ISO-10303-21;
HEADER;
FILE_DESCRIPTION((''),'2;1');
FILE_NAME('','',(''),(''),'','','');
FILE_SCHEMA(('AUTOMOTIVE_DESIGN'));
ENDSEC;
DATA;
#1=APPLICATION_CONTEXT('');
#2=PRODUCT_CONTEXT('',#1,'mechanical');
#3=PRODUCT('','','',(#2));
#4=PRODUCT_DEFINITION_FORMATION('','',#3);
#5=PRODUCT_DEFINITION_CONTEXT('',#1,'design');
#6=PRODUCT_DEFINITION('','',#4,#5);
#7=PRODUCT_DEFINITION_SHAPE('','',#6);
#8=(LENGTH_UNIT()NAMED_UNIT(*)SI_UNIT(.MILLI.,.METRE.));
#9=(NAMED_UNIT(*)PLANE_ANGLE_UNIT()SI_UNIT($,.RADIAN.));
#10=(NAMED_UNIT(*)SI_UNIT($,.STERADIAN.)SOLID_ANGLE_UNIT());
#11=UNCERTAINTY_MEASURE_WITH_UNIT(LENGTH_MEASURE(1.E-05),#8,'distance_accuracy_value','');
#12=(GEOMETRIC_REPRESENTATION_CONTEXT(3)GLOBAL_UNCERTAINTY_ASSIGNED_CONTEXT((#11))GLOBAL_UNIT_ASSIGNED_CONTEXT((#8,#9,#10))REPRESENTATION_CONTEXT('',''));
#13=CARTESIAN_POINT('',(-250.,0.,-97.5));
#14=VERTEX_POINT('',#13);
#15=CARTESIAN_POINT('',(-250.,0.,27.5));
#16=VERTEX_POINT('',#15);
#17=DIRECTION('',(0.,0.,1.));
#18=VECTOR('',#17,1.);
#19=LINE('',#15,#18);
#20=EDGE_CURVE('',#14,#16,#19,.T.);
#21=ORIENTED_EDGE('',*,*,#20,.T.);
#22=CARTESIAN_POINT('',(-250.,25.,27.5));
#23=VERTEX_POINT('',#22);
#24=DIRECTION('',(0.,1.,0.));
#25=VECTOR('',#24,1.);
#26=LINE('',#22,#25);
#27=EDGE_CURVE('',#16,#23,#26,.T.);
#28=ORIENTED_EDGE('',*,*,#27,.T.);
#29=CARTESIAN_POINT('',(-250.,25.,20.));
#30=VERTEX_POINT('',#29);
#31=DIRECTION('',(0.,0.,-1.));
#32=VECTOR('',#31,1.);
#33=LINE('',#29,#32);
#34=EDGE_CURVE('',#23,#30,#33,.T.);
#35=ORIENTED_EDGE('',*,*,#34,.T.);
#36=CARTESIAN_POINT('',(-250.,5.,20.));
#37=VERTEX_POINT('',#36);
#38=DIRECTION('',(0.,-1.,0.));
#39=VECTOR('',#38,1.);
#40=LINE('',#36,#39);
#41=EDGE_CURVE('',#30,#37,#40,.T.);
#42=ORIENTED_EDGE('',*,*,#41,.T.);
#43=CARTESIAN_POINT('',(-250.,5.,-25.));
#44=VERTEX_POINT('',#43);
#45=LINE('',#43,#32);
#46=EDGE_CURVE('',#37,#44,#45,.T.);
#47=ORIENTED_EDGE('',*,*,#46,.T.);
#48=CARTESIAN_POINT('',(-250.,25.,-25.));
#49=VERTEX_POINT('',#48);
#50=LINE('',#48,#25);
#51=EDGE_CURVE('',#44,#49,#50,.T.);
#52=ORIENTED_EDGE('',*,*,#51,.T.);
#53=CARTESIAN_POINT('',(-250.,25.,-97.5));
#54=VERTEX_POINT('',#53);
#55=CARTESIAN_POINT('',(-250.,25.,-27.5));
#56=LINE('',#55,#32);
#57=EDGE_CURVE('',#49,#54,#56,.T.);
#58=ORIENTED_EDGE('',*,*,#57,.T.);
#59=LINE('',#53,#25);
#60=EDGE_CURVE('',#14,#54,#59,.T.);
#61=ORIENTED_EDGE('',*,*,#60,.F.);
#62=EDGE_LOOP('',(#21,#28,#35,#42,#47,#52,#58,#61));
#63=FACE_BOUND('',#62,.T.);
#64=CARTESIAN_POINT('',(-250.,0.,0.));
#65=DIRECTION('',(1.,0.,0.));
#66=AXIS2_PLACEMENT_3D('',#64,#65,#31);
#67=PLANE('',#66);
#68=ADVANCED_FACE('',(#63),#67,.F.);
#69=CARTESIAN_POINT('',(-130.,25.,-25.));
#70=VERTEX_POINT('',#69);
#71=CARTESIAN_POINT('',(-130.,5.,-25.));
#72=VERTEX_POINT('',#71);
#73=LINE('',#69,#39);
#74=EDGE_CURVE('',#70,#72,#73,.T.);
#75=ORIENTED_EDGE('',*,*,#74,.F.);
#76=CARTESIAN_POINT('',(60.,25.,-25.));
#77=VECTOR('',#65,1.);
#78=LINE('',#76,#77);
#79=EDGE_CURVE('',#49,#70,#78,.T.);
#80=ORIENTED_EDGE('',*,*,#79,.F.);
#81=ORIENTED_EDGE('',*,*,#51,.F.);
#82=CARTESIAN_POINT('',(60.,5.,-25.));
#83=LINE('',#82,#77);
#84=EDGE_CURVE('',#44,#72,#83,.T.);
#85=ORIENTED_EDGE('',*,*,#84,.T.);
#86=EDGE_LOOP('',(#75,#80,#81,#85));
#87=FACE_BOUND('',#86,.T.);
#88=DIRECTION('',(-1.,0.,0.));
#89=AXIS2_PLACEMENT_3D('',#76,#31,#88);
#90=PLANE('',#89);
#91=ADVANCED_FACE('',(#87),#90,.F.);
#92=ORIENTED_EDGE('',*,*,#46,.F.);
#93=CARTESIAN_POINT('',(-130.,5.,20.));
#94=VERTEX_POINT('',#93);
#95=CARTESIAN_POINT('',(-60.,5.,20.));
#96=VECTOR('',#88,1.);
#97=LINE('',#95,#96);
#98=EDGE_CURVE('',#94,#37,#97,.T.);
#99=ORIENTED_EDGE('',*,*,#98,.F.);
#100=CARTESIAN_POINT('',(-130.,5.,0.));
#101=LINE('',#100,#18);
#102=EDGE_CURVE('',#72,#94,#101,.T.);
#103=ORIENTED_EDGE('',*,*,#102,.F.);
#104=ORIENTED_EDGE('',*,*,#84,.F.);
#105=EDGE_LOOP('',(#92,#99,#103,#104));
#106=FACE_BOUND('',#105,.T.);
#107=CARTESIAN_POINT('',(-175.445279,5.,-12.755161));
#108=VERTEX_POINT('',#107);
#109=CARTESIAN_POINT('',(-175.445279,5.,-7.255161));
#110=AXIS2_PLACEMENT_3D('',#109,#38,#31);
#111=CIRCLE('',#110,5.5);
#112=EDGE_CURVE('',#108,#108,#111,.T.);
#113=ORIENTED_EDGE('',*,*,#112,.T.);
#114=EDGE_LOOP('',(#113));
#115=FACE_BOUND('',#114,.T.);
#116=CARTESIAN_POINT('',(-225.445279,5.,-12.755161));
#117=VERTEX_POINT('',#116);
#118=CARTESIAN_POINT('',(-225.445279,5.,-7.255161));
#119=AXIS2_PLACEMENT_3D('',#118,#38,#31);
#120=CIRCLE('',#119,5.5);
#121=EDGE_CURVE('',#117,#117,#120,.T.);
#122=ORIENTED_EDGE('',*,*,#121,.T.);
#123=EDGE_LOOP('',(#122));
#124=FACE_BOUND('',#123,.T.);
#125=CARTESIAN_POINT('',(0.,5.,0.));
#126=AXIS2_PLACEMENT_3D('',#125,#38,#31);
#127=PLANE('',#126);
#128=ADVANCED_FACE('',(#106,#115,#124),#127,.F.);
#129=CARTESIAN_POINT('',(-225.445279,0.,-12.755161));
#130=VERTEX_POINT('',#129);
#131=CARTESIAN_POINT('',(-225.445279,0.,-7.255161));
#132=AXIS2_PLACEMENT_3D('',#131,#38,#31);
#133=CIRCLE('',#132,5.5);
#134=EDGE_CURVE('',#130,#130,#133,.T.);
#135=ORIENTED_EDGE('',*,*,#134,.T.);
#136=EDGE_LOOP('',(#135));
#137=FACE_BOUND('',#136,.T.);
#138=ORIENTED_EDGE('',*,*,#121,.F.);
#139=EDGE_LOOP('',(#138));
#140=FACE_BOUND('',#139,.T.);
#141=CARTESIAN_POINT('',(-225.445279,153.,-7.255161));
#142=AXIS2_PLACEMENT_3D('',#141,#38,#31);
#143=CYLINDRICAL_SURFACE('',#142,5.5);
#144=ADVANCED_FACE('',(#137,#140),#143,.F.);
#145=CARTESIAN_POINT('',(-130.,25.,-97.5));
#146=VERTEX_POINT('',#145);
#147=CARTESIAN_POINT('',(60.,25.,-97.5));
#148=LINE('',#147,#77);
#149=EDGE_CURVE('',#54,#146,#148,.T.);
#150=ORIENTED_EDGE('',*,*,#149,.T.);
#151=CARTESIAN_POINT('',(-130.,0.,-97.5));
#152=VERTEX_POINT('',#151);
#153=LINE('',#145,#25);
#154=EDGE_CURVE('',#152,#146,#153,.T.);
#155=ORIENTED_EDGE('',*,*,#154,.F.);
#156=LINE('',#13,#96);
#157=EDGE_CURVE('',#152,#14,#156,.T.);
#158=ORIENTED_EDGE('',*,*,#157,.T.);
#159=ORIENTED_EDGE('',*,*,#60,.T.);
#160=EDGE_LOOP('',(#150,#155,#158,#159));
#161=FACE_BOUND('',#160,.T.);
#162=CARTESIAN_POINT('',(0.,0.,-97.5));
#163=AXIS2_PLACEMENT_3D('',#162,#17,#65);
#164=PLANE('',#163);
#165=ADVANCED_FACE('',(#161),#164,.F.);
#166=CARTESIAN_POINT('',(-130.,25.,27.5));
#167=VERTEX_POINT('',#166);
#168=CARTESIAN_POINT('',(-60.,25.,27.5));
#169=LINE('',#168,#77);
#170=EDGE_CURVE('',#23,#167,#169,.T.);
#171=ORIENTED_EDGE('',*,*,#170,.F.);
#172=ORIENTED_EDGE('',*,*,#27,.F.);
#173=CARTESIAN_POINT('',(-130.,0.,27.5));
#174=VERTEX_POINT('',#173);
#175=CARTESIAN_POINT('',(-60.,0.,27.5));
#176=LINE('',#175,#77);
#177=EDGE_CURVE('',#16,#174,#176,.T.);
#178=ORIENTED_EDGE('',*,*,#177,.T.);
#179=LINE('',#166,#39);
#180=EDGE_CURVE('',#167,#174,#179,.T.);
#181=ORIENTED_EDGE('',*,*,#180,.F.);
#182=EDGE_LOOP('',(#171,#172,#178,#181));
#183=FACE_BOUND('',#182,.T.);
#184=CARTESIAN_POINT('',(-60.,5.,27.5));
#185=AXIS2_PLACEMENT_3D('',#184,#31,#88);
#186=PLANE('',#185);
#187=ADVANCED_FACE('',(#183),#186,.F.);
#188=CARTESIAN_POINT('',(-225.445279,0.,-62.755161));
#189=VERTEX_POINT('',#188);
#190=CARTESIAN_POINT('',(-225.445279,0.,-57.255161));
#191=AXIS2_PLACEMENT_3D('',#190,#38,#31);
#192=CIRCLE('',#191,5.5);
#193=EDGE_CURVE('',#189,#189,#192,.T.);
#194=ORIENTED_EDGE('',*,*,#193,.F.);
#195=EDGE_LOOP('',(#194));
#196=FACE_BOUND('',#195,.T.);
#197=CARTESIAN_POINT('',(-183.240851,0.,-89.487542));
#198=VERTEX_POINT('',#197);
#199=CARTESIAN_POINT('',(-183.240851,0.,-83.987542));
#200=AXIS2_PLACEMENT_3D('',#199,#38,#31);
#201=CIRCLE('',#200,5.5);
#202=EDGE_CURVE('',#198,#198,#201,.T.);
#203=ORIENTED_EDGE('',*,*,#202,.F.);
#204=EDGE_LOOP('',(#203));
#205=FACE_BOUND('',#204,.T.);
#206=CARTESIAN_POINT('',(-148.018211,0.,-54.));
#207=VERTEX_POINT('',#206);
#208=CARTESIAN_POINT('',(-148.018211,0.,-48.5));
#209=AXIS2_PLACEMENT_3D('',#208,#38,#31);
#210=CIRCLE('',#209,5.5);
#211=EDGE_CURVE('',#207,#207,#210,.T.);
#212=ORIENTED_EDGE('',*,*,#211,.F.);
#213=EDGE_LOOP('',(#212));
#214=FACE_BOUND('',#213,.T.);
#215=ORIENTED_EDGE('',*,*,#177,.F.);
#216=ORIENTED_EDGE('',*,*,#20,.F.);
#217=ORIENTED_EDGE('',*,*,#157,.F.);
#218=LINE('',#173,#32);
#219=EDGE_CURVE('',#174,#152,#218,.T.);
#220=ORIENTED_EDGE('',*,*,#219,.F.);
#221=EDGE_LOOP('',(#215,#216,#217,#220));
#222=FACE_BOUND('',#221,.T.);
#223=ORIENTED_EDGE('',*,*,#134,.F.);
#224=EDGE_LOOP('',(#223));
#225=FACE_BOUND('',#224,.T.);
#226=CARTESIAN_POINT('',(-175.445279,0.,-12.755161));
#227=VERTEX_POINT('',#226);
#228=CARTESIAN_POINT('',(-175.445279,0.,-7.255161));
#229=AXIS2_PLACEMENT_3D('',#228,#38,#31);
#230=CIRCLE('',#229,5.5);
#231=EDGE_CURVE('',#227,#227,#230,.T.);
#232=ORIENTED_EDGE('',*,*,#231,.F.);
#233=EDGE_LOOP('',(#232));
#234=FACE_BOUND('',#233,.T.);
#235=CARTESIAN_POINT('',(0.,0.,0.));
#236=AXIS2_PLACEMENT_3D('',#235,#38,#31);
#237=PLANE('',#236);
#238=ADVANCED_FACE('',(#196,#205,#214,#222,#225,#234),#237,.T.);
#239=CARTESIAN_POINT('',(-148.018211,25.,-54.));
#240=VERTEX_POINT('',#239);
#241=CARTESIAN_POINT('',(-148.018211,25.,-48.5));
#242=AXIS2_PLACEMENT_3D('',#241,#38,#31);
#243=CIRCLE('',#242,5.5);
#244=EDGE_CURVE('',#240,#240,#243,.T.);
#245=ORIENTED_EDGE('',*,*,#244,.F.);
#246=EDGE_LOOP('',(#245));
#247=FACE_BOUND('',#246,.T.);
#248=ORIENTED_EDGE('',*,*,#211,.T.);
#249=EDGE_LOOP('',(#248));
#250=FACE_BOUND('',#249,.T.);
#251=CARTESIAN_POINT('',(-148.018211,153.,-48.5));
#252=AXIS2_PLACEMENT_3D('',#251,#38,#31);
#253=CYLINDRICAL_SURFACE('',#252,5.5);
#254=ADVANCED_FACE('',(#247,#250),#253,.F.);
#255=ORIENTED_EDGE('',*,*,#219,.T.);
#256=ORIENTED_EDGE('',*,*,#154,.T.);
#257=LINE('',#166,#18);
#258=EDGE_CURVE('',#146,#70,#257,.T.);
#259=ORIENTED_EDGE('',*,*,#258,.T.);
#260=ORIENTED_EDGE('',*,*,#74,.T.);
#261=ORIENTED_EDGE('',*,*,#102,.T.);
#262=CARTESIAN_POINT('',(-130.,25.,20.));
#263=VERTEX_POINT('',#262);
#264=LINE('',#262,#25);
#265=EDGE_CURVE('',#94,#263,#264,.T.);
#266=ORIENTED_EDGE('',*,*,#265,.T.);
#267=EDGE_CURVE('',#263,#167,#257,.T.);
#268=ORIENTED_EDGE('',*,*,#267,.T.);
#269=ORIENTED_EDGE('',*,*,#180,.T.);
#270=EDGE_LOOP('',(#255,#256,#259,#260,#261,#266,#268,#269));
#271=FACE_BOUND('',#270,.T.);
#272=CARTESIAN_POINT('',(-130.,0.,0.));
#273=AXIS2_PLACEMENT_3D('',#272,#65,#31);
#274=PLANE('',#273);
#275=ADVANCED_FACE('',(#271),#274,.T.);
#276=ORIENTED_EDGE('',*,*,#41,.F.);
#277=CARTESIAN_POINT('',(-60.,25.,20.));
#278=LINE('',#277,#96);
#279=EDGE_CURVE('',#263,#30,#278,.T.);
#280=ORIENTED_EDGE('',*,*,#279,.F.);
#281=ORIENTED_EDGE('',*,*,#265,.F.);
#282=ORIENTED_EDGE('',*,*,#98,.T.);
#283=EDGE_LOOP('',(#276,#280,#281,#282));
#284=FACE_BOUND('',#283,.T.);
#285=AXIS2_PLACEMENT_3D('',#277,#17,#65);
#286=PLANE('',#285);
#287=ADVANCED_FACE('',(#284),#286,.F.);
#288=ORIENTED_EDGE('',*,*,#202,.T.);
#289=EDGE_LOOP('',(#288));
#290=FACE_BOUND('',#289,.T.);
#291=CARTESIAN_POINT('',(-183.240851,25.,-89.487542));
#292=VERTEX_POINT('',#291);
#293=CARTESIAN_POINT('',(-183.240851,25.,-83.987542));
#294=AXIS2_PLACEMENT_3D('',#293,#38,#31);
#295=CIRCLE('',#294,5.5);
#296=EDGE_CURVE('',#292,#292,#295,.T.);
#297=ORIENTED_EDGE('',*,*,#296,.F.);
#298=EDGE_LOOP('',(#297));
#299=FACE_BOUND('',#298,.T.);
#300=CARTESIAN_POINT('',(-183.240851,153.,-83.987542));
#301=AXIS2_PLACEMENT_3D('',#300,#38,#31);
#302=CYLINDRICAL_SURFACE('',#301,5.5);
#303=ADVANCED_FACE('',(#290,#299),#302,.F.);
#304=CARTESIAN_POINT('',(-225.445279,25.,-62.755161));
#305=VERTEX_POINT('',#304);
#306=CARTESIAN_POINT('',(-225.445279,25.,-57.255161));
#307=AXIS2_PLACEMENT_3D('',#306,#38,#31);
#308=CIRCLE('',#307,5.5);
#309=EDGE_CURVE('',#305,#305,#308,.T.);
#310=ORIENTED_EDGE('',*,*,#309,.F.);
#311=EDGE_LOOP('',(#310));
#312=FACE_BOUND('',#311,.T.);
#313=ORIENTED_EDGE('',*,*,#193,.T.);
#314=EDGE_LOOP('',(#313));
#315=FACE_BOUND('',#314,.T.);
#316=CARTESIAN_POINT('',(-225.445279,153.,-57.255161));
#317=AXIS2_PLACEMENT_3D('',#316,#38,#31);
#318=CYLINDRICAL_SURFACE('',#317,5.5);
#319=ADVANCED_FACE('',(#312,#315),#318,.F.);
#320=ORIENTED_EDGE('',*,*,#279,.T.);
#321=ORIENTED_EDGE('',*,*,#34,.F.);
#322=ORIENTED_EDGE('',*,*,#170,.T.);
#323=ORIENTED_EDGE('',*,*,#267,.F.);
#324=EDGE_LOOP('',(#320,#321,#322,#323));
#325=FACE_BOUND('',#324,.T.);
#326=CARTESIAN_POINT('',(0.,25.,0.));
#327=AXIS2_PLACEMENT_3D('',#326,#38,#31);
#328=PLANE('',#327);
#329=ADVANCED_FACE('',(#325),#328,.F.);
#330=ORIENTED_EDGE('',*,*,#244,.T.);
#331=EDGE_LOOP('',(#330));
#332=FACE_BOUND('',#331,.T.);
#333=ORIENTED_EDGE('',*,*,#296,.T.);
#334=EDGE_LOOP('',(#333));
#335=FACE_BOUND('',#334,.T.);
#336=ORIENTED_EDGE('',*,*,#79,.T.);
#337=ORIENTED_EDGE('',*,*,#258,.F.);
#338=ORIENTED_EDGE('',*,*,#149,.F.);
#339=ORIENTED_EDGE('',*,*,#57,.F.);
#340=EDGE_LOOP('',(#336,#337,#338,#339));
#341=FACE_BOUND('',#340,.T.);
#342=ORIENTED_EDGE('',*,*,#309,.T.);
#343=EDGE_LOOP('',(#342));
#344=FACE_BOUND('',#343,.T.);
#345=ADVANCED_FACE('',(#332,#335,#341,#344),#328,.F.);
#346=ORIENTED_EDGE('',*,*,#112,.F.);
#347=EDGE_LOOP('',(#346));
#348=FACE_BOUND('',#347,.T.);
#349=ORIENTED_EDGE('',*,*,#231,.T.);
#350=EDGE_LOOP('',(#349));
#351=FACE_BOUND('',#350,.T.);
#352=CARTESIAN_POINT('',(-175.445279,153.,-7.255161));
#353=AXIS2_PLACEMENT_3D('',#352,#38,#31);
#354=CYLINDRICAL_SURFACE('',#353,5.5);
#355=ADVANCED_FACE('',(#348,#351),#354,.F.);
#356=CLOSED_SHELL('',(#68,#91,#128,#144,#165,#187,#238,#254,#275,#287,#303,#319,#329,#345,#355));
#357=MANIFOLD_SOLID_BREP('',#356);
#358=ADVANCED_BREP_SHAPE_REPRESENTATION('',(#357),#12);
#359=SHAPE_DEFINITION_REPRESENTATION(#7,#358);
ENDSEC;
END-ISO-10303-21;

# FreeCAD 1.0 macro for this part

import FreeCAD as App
import Part
import Sketcher
from FreeCAD import Vector
Q = App.Units.Quantity


def add_polygon(sketch, points):
    """Adds a closed chain of lines whose ends are joined by coincident constraints."""
    first, n = sketch.GeometryCount, len(points)
    for a, b in zip(points, points[1:] + points[:1]):
        sketch.addGeometry(Part.LineSegment(App.Vector(*a, 0), App.Vector(*b, 0)), False)
    for i in range(n):
        sketch.addConstraint(Sketcher.Constraint("Coincident", first + i, 2, first + (i + 1) % n, 1))

doc = App.newDocument("Part")
body = doc.addObject("PartDesign::Body", "Body")

# Sketch on XZ plane
sketch1 = doc.addObject("Sketcher::SketchObject", "Sketch")
body.addObject(sketch1)
sketch1.AttachmentSupport = (doc.XZ_Plane, [""])
sketch1.MapMode = "FlatFace"
add_polygon(sketch1, [(-60, -28), (-60, 28), (60, 28), (60, -28)])  # lines 0-3
sketch1.addConstraint(Sketcher.Constraint("Vertical", 0))
sketch1.addConstraint(Sketcher.Constraint("Horizontal", 1))
sketch1.addConstraint(Sketcher.Constraint("Vertical", 2))
sketch1.addConstraint(Sketcher.Constraint("Horizontal", 3))
sketch1.addConstraint(Sketcher.Constraint("Symmetric", 0, 2, 2, 2, -1, 1))
sketch1.addConstraint(Sketcher.Constraint("DistanceX", 1, 1, 1, 2, Q("120 mm")))
sketch1.addConstraint(Sketcher.Constraint("DistanceY", 0, 1, 0, 2, Q("55 mm")))
pad1 = doc.addObject("PartDesign::Pad", "Pad")
body.addObject(pad1)
pad1.Profile = sketch1
pad1.Length = 5
pad1.Reversed = True

# Sketch on XZ plane
sketch2 = doc.addObject("Sketcher::SketchObject", "Sketch001")
body.addObject(sketch2)
sketch2.AttachmentSupport = (doc.XZ_Plane, [""])
sketch2.MapMode = "FlatFace"
sketch2.AttachmentOffset = App.Placement(Vector(0, 0, -5), App.Rotation())
add_polygon(sketch2, [(-60, 20), (-60, 28), (60, 28), (60, 20)])  # lines 0-3
sketch2.addConstraint(Sketcher.Constraint("Vertical", 0))
sketch2.addConstraint(Sketcher.Constraint("Horizontal", 1))
sketch2.addConstraint(Sketcher.Constraint("Vertical", 2))
sketch2.addConstraint(Sketcher.Constraint("Horizontal", 3))
sketch2.addConstraint(Sketcher.Constraint("DistanceX", 1, 1, 1, 2, Q("120 mm")))
sketch2.addConstraint(Sketcher.Constraint("DistanceY", 0, 1, 0, 2, Q("7.5 mm")))
sketch2.addConstraint(Sketcher.Constraint("DistanceX", 0, 2, -1, 1, Q("60 mm")))
sketch2.addConstraint(Sketcher.Constraint("DistanceY", -1, 1, 2, 2, Q("20 mm")))
pad2 = doc.addObject("PartDesign::Pad", "Pad001")
body.addObject(pad2)
pad2.Profile = sketch2
pad2.Length = 20
pad2.Reversed = True

# Sketch on XZ plane
sketch3 = doc.addObject("Sketcher::SketchObject", "Sketch002")
body.addObject(sketch3)
sketch3.AttachmentSupport = (doc.XZ_Plane, [""])
sketch3.MapMode = "FlatFace"
sketch3.AttachmentOffset = App.Placement(Vector(0, 0, -5), App.Rotation())
add_polygon(sketch3, [(-60, -27.5), (-60, -25), (60, -25), (60, -27.5)])  # lines 0-3
sketch3.addConstraint(Sketcher.Constraint("Vertical", 0))
sketch3.addConstraint(Sketcher.Constraint("Horizontal", 1))
sketch3.addConstraint(Sketcher.Constraint("Vertical", 2))
sketch3.addConstraint(Sketcher.Constraint("Horizontal", 3))
sketch3.addConstraint(Sketcher.Constraint("DistanceX", 1, 1, 1, 2, Q("120 mm")))
sketch3.addConstraint(Sketcher.Constraint("DistanceY", 0, 1, 0, 2, Q("2.5 mm")))
sketch3.addConstraint(Sketcher.Constraint("DistanceX", 0, 2, -1, 1, Q("60 mm")))
sketch3.addConstraint(Sketcher.Constraint("DistanceY", 0, 2, -1, 1, Q("25 mm")))
pad3 = doc.addObject("PartDesign::Pad", "Pad002")
body.addObject(pad3)
pad3.Profile = sketch3
pad3.Length = 20
pad3.Reversed = True

# Sketch on YZ plane
sketch4 = doc.addObject("Sketcher::SketchObject", "Sketch003")
body.addObject(sketch4)
sketch4.AttachmentSupport = (doc.YZ_Plane, [""])
sketch4.MapMode = "FlatFace"
sketch4.AttachmentOffset = App.Placement(Vector(0, 0, -60), App.Rotation())
add_polygon(sketch4, [(25, -27.5), (0, -27.5), (0, 27.5), (25, 27.5), (25, 20), (5, 20), (5, -25), (25, -25)])  # lines 0-7
sketch4.addConstraint(Sketcher.Constraint("Horizontal", 0))
sketch4.addConstraint(Sketcher.Constraint("Vertical", 1))
sketch4.addConstraint(Sketcher.Constraint("Horizontal", 2))
sketch4.addConstraint(Sketcher.Constraint("Vertical", 3))
sketch4.addConstraint(Sketcher.Constraint("Horizontal", 4))
sketch4.addConstraint(Sketcher.Constraint("Vertical", 5))
sketch4.addConstraint(Sketcher.Constraint("Horizontal", 6))
sketch4.addConstraint(Sketcher.Constraint("Vertical", 7))
sketch4.addConstraint(Sketcher.Constraint("Symmetric", 0, 2, 1, 2, -1, 1))
sketch4.addConstraint(Sketcher.Constraint("Vertical", 3, 2, 6, 2))
sketch4.addConstraint(Sketcher.Constraint("DistanceX", 0, 2, 0, 1, Q("25 mm")))
sketch4.addConstraint(Sketcher.Constraint("DistanceX", 4, 2, 4, 1, Q("20 mm")))
sketch4.addConstraint(Sketcher.Constraint("DistanceY", 1, 1, 1, 2, Q("55 mm")))
sketch4.addConstraint(Sketcher.Constraint("DistanceY", 5, 2, 5, 1, Q("45 mm")))
sketch4.addConstraint(Sketcher.Constraint("DistanceY", 3, 2, 3, 1, Q("7.5 mm")))
pad4 = doc.addObject("PartDesign::Pad", "Pad003")
body.addObject(pad4)
pad4.Profile = sketch4
pad4.Length = 190
pad4.Reversed = True

# Sketch on XY plane
sketch5 = doc.addObject("Sketcher::SketchObject", "Sketch004")
body.addObject(sketch5)
sketch5.AttachmentSupport = (doc.XY_Plane, [""])
sketch5.MapMode = "FlatFace"
sketch5.AttachmentOffset = App.Placement(Vector(0, 0, -27.5), App.Rotation())
add_polygon(sketch5, [(60, 25), (60, 0), (-250, 0), (-250, 25)])  # lines 0-3
sketch5.addConstraint(Sketcher.Constraint("Vertical", 0))
sketch5.addConstraint(Sketcher.Constraint("Horizontal", 1))
sketch5.addConstraint(Sketcher.Constraint("Vertical", 2))
sketch5.addConstraint(Sketcher.Constraint("Horizontal", 3))
sketch5.addConstraint(Sketcher.Constraint("PointOnObject", 0, 2, -1))
sketch5.addConstraint(Sketcher.Constraint("DistanceX", 1, 2, 1, 1, Q("310 mm")))
sketch5.addConstraint(Sketcher.Constraint("DistanceY", 0, 2, 0, 1, Q("25 mm")))
sketch5.addConstraint(Sketcher.Constraint("DistanceX", -1, 1, 0, 2, Q("60 mm")))
pad5 = doc.addObject("PartDesign::Pad", "Pad004")
body.addObject(pad5)
pad5.Profile = sketch5
pad5.Length = 70
pad5.Reversed = True

# Sketch on XZ plane
sketch6 = doc.addObject("Sketcher::SketchObject", "Sketch005")
body.addObject(sketch6)
sketch6.AttachmentSupport = (doc.XZ_Plane, [""])
sketch6.MapMode = "FlatFace"
sketch6.addGeometry(Part.Circle(Vector(-225, -7, 0), Vector(0, 0, 1), 6), False)
sketch6.addGeometry(Part.Circle(Vector(-175, -7, 0), Vector(0, 0, 1), 6), False)
sketch6.addGeometry(Part.Circle(Vector(-225, -57, 0), Vector(0, 0, 1), 6), False)
sketch6.addGeometry(Part.Circle(Vector(-148, -48, 0), Vector(0, 0, 1), 6), False)
sketch6.addGeometry(Part.Circle(Vector(-183, -84, 0), Vector(0, 0, 1), 6), False)
sketch6.addConstraint(Sketcher.Constraint("Equal", 0, 1))
sketch6.addConstraint(Sketcher.Constraint("Equal", 1, 2))
sketch6.addConstraint(Sketcher.Constraint("Equal", 2, 3))
sketch6.addConstraint(Sketcher.Constraint("Equal", 3, 4))
sketch6.addConstraint(Sketcher.Constraint("Horizontal", 0, 3, 1, 3))
sketch6.addConstraint(Sketcher.Constraint("Vertical", 0, 3, 2, 3))
sketch6.addConstraint(Sketcher.Constraint("Diameter", 0, Q("11 mm")))
sketch6.addConstraint(Sketcher.Constraint("DistanceX", 0, 3, 1, 3, Q("50 mm")))
sketch6.addConstraint(Sketcher.Constraint("DistanceY", 2, 3, 0, 3, Q("50 mm")))
sketch6.addConstraint(Sketcher.Constraint("DistanceY", 3, 3, -1, 1, Q("48.5 mm")))
sketch6.addConstraint(Sketcher.Constraint("DistanceX", 0, 3, -1, 1, Q("225.445279 mm")))
sketch6.addConstraint(Sketcher.Constraint("DistanceY", 0, 3, -1, 1, Q("7.255161 mm")))
sketch6.addConstraint(Sketcher.Constraint("DistanceX", 3, 3, -1, 1, Q("148.018211 mm")))
sketch6.addConstraint(Sketcher.Constraint("DistanceX", 4, 3, -1, 1, Q("183.240851 mm")))
sketch6.addConstraint(Sketcher.Constraint("DistanceY", 4, 3, -1, 1, Q("83.987542 mm")))
pocket1 = doc.addObject("PartDesign::Pocket", "Pocket")
body.addObject(pocket1)
pocket1.Profile = sketch6
pocket1.Length = 153

# Sketch on YZ plane
sketch7 = doc.addObject("Sketcher::SketchObject", "Sketch006")
body.addObject(sketch7)
sketch7.AttachmentSupport = (doc.YZ_Plane, [""])
sketch7.MapMode = "FlatFace"
sketch7.AttachmentOffset = App.Placement(Vector(0, 0, 60), App.Rotation())
add_polygon(sketch7, [(25, 28), (0, 28), (0, -98), (25, -98)])  # lines 0-3
sketch7.addConstraint(Sketcher.Constraint("Horizontal", 0))
sketch7.addConstraint(Sketcher.Constraint("Vertical", 1))
sketch7.addConstraint(Sketcher.Constraint("Horizontal", 2))
sketch7.addConstraint(Sketcher.Constraint("Vertical", 3))
sketch7.addConstraint(Sketcher.Constraint("PointOnObject", 0, 2, -2))
sketch7.addConstraint(Sketcher.Constraint("DistanceX", 0, 2, 0, 1, Q("25 mm")))
sketch7.addConstraint(Sketcher.Constraint("DistanceY", 1, 2, 1, 1, Q("125 mm")))
sketch7.addConstraint(Sketcher.Constraint("DistanceY", -1, 1, 0, 2, Q("27.5 mm")))
pocket2 = doc.addObject("PartDesign::Pocket", "Pocket001")
body.addObject(pocket2)
pocket2.Profile = sketch7
pocket2.Length = 190

doc.recompute()
